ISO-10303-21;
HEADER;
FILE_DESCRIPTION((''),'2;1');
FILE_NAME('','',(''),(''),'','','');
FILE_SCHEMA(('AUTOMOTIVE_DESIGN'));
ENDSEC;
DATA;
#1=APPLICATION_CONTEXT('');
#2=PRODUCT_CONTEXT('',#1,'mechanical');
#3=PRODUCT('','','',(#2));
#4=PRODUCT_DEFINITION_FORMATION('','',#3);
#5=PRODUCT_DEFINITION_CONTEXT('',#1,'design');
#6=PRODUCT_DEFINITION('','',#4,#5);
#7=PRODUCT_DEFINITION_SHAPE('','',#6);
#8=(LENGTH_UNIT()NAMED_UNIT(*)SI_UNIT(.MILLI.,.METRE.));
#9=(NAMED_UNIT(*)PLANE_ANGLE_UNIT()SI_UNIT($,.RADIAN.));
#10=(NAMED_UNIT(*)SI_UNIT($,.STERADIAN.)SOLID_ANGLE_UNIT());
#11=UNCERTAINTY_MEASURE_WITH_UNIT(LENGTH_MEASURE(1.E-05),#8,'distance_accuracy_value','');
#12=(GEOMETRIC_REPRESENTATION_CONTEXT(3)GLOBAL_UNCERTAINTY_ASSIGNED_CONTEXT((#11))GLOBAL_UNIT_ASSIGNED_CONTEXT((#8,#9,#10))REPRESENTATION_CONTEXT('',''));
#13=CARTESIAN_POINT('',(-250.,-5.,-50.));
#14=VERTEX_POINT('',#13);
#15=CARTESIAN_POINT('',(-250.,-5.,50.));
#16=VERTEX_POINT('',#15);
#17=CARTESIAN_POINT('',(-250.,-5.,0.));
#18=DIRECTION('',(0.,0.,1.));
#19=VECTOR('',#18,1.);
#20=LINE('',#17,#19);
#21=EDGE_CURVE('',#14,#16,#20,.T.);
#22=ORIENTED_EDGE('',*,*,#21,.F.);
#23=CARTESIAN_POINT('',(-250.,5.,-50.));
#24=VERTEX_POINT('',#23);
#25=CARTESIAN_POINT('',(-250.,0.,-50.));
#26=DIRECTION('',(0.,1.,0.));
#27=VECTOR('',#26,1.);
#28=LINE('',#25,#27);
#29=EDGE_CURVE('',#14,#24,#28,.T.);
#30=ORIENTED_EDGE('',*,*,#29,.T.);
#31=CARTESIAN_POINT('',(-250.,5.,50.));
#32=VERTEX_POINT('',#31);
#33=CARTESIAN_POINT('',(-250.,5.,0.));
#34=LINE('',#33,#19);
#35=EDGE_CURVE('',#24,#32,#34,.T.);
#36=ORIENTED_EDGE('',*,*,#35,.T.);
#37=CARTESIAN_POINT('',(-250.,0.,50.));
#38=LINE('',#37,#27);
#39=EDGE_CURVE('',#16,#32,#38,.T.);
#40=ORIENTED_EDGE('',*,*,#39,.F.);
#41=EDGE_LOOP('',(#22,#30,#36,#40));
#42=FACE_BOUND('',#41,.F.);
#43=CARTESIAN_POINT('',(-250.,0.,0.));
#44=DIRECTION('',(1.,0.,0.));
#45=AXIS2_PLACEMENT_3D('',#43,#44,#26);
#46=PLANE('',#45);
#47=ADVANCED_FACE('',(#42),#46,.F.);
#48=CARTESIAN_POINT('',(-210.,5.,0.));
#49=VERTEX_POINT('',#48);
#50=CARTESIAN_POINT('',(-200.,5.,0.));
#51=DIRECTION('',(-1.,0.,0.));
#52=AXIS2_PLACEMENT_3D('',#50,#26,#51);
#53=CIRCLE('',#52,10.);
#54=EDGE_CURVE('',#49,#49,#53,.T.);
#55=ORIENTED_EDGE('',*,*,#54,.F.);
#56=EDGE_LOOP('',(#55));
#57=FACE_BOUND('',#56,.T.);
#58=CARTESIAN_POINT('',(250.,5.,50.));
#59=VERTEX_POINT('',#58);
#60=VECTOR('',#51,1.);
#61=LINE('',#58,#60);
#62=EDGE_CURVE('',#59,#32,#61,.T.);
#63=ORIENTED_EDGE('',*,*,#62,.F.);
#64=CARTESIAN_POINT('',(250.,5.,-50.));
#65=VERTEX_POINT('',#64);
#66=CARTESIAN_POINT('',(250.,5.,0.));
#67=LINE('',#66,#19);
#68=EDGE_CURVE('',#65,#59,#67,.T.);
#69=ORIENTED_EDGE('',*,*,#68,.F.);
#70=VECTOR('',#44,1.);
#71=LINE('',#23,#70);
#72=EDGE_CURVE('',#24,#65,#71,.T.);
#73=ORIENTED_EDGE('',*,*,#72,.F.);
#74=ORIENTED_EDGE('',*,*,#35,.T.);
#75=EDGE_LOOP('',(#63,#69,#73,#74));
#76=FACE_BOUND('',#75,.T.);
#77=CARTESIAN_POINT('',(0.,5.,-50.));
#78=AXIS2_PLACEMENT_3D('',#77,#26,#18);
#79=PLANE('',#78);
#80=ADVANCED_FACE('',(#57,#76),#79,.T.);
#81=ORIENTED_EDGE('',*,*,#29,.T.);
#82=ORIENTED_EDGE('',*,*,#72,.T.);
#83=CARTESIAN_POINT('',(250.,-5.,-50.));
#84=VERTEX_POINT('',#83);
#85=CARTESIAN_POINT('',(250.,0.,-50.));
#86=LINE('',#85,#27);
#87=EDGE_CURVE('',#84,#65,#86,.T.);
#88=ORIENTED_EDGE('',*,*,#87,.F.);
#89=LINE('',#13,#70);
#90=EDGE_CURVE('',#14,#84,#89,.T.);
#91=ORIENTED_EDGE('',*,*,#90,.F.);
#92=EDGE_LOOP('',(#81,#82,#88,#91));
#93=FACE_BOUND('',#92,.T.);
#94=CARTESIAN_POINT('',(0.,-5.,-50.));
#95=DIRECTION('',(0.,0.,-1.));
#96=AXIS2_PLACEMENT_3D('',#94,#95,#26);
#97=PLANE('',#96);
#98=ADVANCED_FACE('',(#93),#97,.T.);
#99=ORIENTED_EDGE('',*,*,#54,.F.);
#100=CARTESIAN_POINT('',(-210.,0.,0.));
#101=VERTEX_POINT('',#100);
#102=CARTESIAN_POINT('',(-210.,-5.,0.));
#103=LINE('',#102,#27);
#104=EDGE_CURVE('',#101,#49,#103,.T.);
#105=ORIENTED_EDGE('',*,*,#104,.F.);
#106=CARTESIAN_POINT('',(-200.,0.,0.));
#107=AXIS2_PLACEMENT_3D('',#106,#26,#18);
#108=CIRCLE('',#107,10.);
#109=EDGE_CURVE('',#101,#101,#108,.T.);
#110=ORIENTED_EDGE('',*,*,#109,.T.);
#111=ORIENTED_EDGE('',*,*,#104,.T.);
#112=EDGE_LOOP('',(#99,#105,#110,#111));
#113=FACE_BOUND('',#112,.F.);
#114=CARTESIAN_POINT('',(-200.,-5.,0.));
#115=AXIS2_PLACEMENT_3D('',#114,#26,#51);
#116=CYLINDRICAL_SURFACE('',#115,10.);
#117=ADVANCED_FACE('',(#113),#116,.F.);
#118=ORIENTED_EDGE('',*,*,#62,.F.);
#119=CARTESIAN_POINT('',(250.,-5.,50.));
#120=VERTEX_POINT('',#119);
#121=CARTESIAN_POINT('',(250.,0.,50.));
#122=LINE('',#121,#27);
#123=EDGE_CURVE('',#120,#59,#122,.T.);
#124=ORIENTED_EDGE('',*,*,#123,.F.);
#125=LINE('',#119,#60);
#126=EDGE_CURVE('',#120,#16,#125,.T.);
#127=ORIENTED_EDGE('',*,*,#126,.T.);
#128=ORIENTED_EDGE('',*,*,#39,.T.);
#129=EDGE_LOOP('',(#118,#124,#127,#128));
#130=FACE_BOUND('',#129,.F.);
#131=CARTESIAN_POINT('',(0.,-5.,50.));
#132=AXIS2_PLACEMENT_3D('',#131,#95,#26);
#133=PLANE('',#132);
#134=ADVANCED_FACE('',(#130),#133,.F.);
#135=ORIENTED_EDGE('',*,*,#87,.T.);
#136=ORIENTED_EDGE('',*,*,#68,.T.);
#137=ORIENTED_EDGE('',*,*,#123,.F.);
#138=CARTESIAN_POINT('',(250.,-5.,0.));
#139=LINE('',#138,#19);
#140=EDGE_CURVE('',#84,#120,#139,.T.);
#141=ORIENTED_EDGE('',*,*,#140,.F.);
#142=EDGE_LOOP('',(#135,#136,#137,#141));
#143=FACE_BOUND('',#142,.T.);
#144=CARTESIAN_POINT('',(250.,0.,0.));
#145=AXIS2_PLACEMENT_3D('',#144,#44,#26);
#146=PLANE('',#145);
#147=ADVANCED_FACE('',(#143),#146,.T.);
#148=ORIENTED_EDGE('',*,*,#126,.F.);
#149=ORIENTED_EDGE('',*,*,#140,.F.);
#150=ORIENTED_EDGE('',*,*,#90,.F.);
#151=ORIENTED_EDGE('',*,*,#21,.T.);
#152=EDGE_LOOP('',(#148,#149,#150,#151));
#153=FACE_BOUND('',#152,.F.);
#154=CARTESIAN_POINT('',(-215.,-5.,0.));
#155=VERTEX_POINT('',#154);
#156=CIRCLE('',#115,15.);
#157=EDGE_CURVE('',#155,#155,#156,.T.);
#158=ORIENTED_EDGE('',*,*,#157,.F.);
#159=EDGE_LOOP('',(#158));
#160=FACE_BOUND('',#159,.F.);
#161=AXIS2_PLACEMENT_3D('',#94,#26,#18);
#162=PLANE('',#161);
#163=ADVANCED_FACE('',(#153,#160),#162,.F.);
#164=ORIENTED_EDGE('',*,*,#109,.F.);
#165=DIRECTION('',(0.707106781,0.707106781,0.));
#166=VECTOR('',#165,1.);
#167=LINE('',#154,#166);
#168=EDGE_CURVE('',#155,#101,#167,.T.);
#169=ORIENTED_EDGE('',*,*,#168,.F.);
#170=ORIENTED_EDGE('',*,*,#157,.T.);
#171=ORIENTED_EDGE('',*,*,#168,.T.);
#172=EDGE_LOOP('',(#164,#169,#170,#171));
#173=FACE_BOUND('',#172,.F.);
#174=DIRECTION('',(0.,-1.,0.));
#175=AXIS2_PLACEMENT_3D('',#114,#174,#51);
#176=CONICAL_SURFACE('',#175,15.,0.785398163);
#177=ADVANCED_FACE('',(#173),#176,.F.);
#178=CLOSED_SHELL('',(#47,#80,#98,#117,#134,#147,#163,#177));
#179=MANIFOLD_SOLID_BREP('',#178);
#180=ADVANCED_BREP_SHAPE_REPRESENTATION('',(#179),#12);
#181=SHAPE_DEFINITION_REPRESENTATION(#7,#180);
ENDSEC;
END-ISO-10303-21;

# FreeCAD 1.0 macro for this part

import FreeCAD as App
import Part
import Sketcher
from FreeCAD import Vector

doc = App.newDocument("Part")
body = doc.addObject("PartDesign::Body", "Body")

# Sketch on YZ plane
sketch1 = body.newObject("Sketcher::SketchObject", "Sketch")
sketch1.AttachmentSupport = (doc.getObject("YZ_Plane"), [""])
sketch1.MapMode = "FlatFace"
sketch1.addGeometry([
    Part.LineSegment(Vector(-5, 50, 0), Vector(-5, -50, 0)),
    Part.LineSegment(Vector(-5, -50, 0), Vector(5, -50, 0)),
    Part.LineSegment(Vector(5, -50, 0), Vector(5, 50, 0)),
    Part.LineSegment(Vector(5, 50, 0), Vector(-5, 50, 0)),
], False)
sketch1.addConstraint([
    Sketcher.Constraint("Coincident", 0, 2, 1, 1),
    Sketcher.Constraint("Coincident", 1, 2, 2, 1),
    Sketcher.Constraint("Coincident", 2, 2, 3, 1),
    Sketcher.Constraint("Coincident", 3, 2, 0, 1),
    Sketcher.Constraint("Vertical", 0),
    Sketcher.Constraint("Horizontal", 1),
    Sketcher.Constraint("Vertical", 2),
    Sketcher.Constraint("Horizontal", 3),
    Sketcher.Constraint("Symmetric", 0, 2, 2, 2, -1, 1),
    Sketcher.Constraint("DistanceX", 1, 1, 1, 2, 10.0),
    Sketcher.Constraint("DistanceY", 0, 2, 0, 1, 100.0),
])
pad1 = body.newObject("PartDesign::Pad", "Pad")
pad1.Profile = sketch1
pad1.Length = 500
pad1.Midplane = True

# Sketch on XZ plane
sketch2 = body.newObject("Sketcher::SketchObject", "Sketch001")
sketch2.AttachmentSupport = (doc.getObject("XZ_Plane"), [""])
sketch2.MapMode = "FlatFace"
sketch2.AttachmentOffset = App.Placement(Vector(0, 0, 5), App.Rotation())
sketch2.addGeometry(Part.Circle(Vector(-200, 0, 0), Vector(0, 0, 1), 10), False)
sketch2.addConstraint([
    Sketcher.Constraint("PointOnObject", 0, 3, -1),
    Sketcher.Constraint("Diameter", 0, 20.0),
    Sketcher.Constraint("DistanceX", 0, 3, -1, 1, 200.0),
])
doc.recompute()
hole = body.newObject("PartDesign::Hole", "Hole")
hole.Profile = sketch2
hole.ThreadType = "None"
hole.Diameter = 20
hole.DepthType = "ThroughAll"
hole.HoleCutType = "Countersink"
hole.HoleCutDiameter = 30
hole.HoleCutCountersinkAngle = 90

doc.recompute()
